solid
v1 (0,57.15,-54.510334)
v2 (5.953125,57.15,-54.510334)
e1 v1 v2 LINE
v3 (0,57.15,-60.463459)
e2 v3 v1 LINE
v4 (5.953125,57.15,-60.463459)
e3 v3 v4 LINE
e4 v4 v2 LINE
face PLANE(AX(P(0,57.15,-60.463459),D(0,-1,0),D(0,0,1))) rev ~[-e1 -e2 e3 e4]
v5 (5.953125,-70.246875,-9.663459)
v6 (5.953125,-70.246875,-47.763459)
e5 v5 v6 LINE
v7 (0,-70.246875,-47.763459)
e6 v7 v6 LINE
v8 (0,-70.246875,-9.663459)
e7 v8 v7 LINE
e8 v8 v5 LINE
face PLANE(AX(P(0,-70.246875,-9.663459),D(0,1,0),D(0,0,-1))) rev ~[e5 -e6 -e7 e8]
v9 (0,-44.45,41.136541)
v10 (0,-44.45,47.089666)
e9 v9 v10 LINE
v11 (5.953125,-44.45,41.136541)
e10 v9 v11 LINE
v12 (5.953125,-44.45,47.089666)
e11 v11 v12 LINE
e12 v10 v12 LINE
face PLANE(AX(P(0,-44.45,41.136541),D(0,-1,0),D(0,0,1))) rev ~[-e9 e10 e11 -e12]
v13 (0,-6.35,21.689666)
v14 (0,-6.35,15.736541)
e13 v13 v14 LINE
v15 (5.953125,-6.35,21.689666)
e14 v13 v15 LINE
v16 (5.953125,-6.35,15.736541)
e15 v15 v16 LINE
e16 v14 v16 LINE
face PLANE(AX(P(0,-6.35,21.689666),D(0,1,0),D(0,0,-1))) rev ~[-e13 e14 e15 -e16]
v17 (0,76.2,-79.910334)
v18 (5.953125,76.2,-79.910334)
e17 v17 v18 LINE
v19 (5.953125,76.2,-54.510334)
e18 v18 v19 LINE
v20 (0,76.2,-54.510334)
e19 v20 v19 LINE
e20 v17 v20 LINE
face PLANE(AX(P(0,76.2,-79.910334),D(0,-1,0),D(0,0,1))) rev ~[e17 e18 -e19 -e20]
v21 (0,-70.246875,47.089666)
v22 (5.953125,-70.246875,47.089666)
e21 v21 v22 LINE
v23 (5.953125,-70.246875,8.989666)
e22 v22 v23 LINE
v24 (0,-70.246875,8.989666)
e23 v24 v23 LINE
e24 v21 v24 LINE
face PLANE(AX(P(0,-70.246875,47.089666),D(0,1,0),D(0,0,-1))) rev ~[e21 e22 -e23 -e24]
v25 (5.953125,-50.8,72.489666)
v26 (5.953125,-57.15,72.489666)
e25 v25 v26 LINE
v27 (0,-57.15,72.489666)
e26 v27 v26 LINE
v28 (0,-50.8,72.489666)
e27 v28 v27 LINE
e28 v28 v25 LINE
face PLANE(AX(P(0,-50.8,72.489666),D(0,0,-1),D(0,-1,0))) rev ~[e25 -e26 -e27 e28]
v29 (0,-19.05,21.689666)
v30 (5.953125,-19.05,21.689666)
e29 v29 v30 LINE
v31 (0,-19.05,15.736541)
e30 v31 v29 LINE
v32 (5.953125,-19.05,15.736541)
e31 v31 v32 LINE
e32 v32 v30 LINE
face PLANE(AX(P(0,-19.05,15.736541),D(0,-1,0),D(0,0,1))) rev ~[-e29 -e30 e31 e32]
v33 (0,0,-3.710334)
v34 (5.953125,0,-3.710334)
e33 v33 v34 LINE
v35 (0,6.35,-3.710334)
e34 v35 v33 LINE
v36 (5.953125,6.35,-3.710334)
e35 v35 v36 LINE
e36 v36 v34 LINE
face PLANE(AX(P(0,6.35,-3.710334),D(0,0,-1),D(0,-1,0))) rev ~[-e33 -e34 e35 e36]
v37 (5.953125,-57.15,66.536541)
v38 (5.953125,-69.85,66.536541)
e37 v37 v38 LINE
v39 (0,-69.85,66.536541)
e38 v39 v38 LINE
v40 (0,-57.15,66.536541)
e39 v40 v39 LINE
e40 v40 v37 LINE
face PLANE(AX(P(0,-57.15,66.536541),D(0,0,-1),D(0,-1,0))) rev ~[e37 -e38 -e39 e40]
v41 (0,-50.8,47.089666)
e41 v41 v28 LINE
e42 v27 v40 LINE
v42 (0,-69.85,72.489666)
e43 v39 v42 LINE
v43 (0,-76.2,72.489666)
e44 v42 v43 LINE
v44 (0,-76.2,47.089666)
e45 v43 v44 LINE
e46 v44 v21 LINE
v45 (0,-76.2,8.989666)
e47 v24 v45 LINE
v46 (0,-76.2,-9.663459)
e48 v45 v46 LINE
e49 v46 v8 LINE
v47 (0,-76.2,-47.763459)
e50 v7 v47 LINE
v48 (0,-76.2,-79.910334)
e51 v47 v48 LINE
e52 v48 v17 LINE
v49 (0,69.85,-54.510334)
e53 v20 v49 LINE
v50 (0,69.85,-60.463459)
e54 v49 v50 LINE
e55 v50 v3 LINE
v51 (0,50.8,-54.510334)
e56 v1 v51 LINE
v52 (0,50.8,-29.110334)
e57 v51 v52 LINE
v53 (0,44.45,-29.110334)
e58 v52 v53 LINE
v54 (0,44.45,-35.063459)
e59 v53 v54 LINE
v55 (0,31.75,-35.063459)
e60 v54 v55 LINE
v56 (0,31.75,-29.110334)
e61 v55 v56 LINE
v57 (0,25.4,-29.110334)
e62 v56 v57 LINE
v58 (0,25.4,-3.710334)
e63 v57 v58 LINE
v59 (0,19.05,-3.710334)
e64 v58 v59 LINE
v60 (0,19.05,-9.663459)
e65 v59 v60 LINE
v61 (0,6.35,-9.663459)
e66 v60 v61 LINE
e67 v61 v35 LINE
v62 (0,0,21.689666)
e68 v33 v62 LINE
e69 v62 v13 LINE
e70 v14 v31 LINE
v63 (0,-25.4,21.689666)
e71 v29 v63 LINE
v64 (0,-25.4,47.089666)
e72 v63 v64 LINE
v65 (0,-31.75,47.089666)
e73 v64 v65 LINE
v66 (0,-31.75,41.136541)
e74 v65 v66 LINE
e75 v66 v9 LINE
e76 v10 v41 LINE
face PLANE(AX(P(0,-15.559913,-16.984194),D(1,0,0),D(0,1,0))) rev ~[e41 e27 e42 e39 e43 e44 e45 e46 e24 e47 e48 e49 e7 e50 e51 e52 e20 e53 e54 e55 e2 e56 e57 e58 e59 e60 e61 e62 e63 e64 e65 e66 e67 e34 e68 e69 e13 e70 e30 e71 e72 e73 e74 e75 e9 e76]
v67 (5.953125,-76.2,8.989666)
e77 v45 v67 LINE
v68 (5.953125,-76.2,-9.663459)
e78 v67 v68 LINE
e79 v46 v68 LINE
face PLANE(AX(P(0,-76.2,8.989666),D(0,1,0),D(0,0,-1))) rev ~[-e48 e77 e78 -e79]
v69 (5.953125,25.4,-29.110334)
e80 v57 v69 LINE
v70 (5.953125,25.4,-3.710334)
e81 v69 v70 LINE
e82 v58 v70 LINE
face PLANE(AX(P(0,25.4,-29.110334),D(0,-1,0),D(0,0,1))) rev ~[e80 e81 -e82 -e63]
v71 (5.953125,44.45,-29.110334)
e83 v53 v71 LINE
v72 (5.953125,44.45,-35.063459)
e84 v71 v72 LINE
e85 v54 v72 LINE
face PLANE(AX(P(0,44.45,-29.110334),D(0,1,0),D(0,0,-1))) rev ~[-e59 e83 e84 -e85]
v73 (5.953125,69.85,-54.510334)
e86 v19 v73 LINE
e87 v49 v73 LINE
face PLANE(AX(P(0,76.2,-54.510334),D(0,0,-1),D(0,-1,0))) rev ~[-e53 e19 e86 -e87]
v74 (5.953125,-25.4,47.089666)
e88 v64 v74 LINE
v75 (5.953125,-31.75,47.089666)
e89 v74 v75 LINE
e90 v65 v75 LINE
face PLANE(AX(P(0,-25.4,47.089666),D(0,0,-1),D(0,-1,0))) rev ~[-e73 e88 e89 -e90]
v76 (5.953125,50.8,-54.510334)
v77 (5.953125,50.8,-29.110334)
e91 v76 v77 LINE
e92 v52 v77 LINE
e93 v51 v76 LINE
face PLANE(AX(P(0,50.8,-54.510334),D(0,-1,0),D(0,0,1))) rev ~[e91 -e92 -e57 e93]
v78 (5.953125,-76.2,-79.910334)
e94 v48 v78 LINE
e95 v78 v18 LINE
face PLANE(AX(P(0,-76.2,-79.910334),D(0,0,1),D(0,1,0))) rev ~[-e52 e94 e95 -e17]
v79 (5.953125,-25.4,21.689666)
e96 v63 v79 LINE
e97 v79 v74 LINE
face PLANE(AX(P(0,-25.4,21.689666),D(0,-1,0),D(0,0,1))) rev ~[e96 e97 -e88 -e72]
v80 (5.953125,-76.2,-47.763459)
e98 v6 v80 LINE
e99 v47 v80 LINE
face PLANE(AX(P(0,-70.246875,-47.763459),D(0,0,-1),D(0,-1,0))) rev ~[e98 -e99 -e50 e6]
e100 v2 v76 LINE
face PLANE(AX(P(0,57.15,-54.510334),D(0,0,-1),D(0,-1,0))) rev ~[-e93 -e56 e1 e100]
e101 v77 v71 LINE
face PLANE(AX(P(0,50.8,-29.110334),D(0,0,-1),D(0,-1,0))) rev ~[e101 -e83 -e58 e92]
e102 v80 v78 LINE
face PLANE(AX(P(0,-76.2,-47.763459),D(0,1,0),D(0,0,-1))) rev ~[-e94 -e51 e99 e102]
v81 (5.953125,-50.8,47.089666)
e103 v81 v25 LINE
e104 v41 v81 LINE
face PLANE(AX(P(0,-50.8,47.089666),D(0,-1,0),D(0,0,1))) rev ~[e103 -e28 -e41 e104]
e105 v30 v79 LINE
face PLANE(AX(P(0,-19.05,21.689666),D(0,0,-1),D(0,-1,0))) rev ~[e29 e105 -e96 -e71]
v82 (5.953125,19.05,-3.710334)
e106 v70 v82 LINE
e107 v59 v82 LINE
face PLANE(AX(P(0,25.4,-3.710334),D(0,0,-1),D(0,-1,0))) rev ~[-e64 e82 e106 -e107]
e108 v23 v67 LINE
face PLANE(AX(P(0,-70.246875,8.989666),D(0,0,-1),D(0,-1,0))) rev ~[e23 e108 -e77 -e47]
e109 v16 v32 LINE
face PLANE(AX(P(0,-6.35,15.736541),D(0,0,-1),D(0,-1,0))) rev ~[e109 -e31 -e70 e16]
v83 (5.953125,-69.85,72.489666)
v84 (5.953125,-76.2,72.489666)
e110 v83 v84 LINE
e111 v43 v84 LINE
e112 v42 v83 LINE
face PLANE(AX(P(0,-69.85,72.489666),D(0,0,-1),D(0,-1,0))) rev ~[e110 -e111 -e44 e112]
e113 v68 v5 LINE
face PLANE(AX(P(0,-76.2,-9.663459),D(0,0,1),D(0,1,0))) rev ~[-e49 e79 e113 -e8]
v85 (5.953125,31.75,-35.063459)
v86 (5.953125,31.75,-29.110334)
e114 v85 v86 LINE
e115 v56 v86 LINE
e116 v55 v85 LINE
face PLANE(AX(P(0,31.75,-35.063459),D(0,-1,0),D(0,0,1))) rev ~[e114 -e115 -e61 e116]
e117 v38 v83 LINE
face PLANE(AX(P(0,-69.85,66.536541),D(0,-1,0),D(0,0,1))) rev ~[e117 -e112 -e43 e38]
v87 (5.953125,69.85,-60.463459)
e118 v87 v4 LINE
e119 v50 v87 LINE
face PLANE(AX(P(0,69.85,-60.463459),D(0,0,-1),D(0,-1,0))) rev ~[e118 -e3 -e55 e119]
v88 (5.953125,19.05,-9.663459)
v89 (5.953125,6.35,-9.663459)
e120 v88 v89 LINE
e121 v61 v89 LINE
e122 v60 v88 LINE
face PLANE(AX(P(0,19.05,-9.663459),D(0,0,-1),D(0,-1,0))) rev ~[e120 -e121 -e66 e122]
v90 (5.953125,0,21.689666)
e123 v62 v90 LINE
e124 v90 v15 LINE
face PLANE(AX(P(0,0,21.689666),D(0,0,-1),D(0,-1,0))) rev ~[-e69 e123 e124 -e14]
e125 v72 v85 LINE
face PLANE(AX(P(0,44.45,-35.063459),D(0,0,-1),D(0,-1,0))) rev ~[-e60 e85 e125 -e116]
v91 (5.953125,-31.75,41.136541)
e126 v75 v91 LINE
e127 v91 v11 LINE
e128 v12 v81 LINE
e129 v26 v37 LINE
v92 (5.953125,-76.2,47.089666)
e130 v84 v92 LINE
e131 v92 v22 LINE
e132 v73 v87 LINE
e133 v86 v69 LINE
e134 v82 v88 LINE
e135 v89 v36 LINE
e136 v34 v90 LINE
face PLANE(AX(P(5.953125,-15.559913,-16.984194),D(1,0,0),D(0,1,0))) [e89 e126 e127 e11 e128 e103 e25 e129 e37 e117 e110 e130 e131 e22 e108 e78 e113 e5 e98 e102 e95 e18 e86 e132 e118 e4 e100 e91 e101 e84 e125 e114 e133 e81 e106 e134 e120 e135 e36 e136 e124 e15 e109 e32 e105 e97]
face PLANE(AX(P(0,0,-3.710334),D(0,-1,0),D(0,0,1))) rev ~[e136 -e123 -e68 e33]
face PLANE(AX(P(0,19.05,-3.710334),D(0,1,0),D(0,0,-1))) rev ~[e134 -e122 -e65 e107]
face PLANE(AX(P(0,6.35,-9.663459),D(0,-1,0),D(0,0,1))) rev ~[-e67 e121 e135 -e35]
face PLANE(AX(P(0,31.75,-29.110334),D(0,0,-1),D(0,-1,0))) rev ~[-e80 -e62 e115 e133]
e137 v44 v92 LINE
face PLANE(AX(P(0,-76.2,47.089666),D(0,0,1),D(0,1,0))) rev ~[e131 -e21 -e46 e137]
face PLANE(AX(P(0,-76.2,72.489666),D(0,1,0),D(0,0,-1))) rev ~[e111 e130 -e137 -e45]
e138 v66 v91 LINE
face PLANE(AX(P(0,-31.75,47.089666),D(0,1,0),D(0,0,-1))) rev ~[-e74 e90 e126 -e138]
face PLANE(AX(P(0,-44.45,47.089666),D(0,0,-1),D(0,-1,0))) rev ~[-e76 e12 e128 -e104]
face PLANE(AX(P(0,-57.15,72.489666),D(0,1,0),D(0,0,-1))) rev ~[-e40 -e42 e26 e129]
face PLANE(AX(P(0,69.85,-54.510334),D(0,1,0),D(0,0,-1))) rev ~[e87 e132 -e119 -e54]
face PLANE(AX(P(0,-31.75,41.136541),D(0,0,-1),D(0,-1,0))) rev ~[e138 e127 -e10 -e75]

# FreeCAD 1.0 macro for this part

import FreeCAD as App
import Part
import Sketcher
from FreeCAD import Vector
Q = App.Units.Quantity

doc = App.newDocument("Part")
body = doc.addObject("PartDesign::Body", "Body")

# Sketch on YZ plane
sketch1 = doc.addObject("Sketcher::SketchObject", "Sketch")
body.addObject(sketch1)
sketch1.AttachmentSupport = (doc.YZ_Plane, [""])
sketch1.MapMode = "FlatFace"
sketch1.addGeometry([
    Part.LineSegment(Vector(-69.85, 72.489666, 0), Vector(-76.2, 72.489666, 0)),  # 0
    Part.LineSegment(Vector(-76.2, 72.489666, 0), Vector(-76.2, 47.089666, 0)),  # 1
    Part.LineSegment(Vector(-76.2, 47.089666, 0), Vector(-70.246875, 47.089666, 0)),  # 2
    Part.LineSegment(Vector(-70.246875, 47.089666, 0), Vector(-70.246875, 8.989666, 0)),  # 3
    Part.LineSegment(Vector(-70.246875, 8.989666, 0), Vector(-76.2, 8.989666, 0)),  # 4
    Part.LineSegment(Vector(-76.2, 8.989666, 0), Vector(-76.2, -9.663459, 0)),  # 5
    Part.LineSegment(Vector(-76.2, -9.663459, 0), Vector(-70.246875, -9.663459, 0)),  # 6
    Part.LineSegment(Vector(-70.246875, -9.663459, 0), Vector(-70.246875, -47.763459, 0)),  # 7
    Part.LineSegment(Vector(-70.246875, -47.763459, 0), Vector(-76.2, -47.763459, 0)),  # 8
    Part.LineSegment(Vector(-76.2, -47.763459, 0), Vector(-76.2, -79.910334, 0)),  # 9
    Part.LineSegment(Vector(-76.2, -79.910334, 0), Vector(76.2, -79.910334, 0)),  # 10
    Part.LineSegment(Vector(76.2, -79.910334, 0), Vector(76.2, -54.510334, 0)),  # 11
    Part.LineSegment(Vector(76.2, -54.510334, 0), Vector(69.85, -54.510334, 0)),  # 12
    Part.LineSegment(Vector(69.85, -54.510334, 0), Vector(69.85, -60.463459, 0)),  # 13
    Part.LineSegment(Vector(69.85, -60.463459, 0), Vector(57.15, -60.463459, 0)),  # 14
    Part.LineSegment(Vector(57.15, -60.463459, 0), Vector(57.15, -54.510334, 0)),  # 15
    Part.LineSegment(Vector(57.15, -54.510334, 0), Vector(50.8, -54.510334, 0)),  # 16
    Part.LineSegment(Vector(50.8, -54.510334, 0), Vector(50.8, -29.110334, 0)),  # 17
    Part.LineSegment(Vector(50.8, -29.110334, 0), Vector(44.45, -29.110334, 0)),  # 18
    Part.LineSegment(Vector(44.45, -29.110334, 0), Vector(44.45, -35.063459, 0)),  # 19
    Part.LineSegment(Vector(44.45, -35.063459, 0), Vector(31.75, -35.063459, 0)),  # 20
    Part.LineSegment(Vector(31.75, -35.063459, 0), Vector(31.75, -29.110334, 0)),  # 21
    Part.LineSegment(Vector(31.75, -29.110334, 0), Vector(25.4, -29.110334, 0)),  # 22
    Part.LineSegment(Vector(25.4, -29.110334, 0), Vector(25.4, -3.710334, 0)),  # 23
    Part.LineSegment(Vector(25.4, -3.710334, 0), Vector(19.05, -3.710334, 0)),  # 24
    Part.LineSegment(Vector(19.05, -3.710334, 0), Vector(19.05, -9.663459, 0)),  # 25
    Part.LineSegment(Vector(19.05, -9.663459, 0), Vector(6.35, -9.663459, 0)),  # 26
    Part.LineSegment(Vector(6.35, -9.663459, 0), Vector(6.35, -3.710334, 0)),  # 27
    Part.LineSegment(Vector(6.35, -3.710334, 0), Vector(0, -3.710334, 0)),  # 28
    Part.LineSegment(Vector(0, -3.710334, 0), Vector(0, 21.689666, 0)),  # 29
    Part.LineSegment(Vector(0, 21.689666, 0), Vector(-6.35, 21.689666, 0)),  # 30
    Part.LineSegment(Vector(-6.35, 21.689666, 0), Vector(-6.35, 15.736541, 0)),  # 31
    Part.LineSegment(Vector(-6.35, 15.736541, 0), Vector(-19.05, 15.736541, 0)),  # 32
    Part.LineSegment(Vector(-19.05, 15.736541, 0), Vector(-19.05, 21.689666, 0)),  # 33
    Part.LineSegment(Vector(-19.05, 21.689666, 0), Vector(-25.4, 21.689666, 0)),  # 34
    Part.LineSegment(Vector(-25.4, 21.689666, 0), Vector(-25.4, 47.089666, 0)),  # 35
    Part.LineSegment(Vector(-25.4, 47.089666, 0), Vector(-31.75, 47.089666, 0)),  # 36
    Part.LineSegment(Vector(-31.75, 47.089666, 0), Vector(-31.75, 41.136541, 0)),  # 37
    Part.LineSegment(Vector(-31.75, 41.136541, 0), Vector(-44.45, 41.136541, 0)),  # 38
    Part.LineSegment(Vector(-44.45, 41.136541, 0), Vector(-44.45, 47.089666, 0)),  # 39
    Part.LineSegment(Vector(-44.45, 47.089666, 0), Vector(-50.8, 47.089666, 0)),  # 40
    Part.LineSegment(Vector(-50.8, 47.089666, 0), Vector(-50.8, 72.489666, 0)),  # 41
    Part.LineSegment(Vector(-50.8, 72.489666, 0), Vector(-57.15, 72.489666, 0)),  # 42
    Part.LineSegment(Vector(-57.15, 72.489666, 0), Vector(-57.15, 66.536541, 0)),  # 43
    Part.LineSegment(Vector(-57.15, 66.536541, 0), Vector(-69.85, 66.536541, 0)),  # 44
    Part.LineSegment(Vector(-69.85, 66.536541, 0), Vector(-69.85, 72.489666, 0)),  # 45
], False)
sketch1.addConstraint([
    Sketcher.Constraint("Coincident", 0, 2, 1, 1),
    Sketcher.Constraint("Coincident", 1, 2, 2, 1),
    Sketcher.Constraint("Coincident", 2, 2, 3, 1),
    Sketcher.Constraint("Coincident", 3, 2, 4, 1),
    Sketcher.Constraint("Coincident", 4, 2, 5, 1),
    Sketcher.Constraint("Coincident", 5, 2, 6, 1),
    Sketcher.Constraint("Coincident", 6, 2, 7, 1),
    Sketcher.Constraint("Coincident", 7, 2, 8, 1),
    Sketcher.Constraint("Coincident", 8, 2, 9, 1),
    Sketcher.Constraint("Coincident", 9, 2, 10, 1),
    Sketcher.Constraint("Coincident", 10, 2, 11, 1),
    Sketcher.Constraint("Coincident", 11, 2, 12, 1),
    Sketcher.Constraint("Coincident", 12, 2, 13, 1),
    Sketcher.Constraint("Coincident", 13, 2, 14, 1),
    Sketcher.Constraint("Coincident", 14, 2, 15, 1),
    Sketcher.Constraint("Coincident", 15, 2, 16, 1),
    Sketcher.Constraint("Coincident", 16, 2, 17, 1),
    Sketcher.Constraint("Coincident", 17, 2, 18, 1),
    Sketcher.Constraint("Coincident", 18, 2, 19, 1),
    Sketcher.Constraint("Coincident", 19, 2, 20, 1),
    Sketcher.Constraint("Coincident", 20, 2, 21, 1),
    Sketcher.Constraint("Coincident", 21, 2, 22, 1),
    Sketcher.Constraint("Coincident", 22, 2, 23, 1),
    Sketcher.Constraint("Coincident", 23, 2, 24, 1),
    Sketcher.Constraint("Coincident", 24, 2, 25, 1),
    Sketcher.Constraint("Coincident", 25, 2, 26, 1),
    Sketcher.Constraint("Coincident", 26, 2, 27, 1),
    Sketcher.Constraint("Coincident", 27, 2, 28, 1),
    Sketcher.Constraint("Coincident", 28, 2, 29, 1),
    Sketcher.Constraint("Coincident", 29, 2, 30, 1),
    Sketcher.Constraint("Coincident", 30, 2, 31, 1),
    Sketcher.Constraint("Coincident", 31, 2, 32, 1),
    Sketcher.Constraint("Coincident", 32, 2, 33, 1),
    Sketcher.Constraint("Coincident", 33, 2, 34, 1),
    Sketcher.Constraint("Coincident", 34, 2, 35, 1),
    Sketcher.Constraint("Coincident", 35, 2, 36, 1),
    Sketcher.Constraint("Coincident", 36, 2, 37, 1),
    Sketcher.Constraint("Coincident", 37, 2, 38, 1),
    Sketcher.Constraint("Coincident", 38, 2, 39, 1),
    Sketcher.Constraint("Coincident", 39, 2, 40, 1),
    Sketcher.Constraint("Coincident", 40, 2, 41, 1),
    Sketcher.Constraint("Coincident", 41, 2, 42, 1),
    Sketcher.Constraint("Coincident", 42, 2, 43, 1),
    Sketcher.Constraint("Coincident", 43, 2, 44, 1),
    Sketcher.Constraint("Coincident", 44, 2, 45, 1),
    Sketcher.Constraint("Coincident", 45, 2, 0, 1),
    Sketcher.Constraint("Horizontal", 0),
    Sketcher.Constraint("Vertical", 1),
    Sketcher.Constraint("Horizontal", 2),
    Sketcher.Constraint("Vertical", 3),
    Sketcher.Constraint("Horizontal", 4),
    Sketcher.Constraint("Vertical", 5),
    Sketcher.Constraint("Horizontal", 6),
    Sketcher.Constraint("Vertical", 7),
    Sketcher.Constraint("Horizontal", 8),
    Sketcher.Constraint("Vertical", 9),
    Sketcher.Constraint("Horizontal", 10),
    Sketcher.Constraint("Vertical", 11),
    Sketcher.Constraint("Horizontal", 12),
    Sketcher.Constraint("Vertical", 13),
    Sketcher.Constraint("Horizontal", 14),
    Sketcher.Constraint("Vertical", 15),
    Sketcher.Constraint("Horizontal", 16),
    Sketcher.Constraint("Vertical", 17),
    Sketcher.Constraint("Horizontal", 18),
    Sketcher.Constraint("Vertical", 19),
    Sketcher.Constraint("Horizontal", 20),
    Sketcher.Constraint("Vertical", 21),
    Sketcher.Constraint("Horizontal", 22),
    Sketcher.Constraint("Vertical", 23),
    Sketcher.Constraint("Horizontal", 24),
    Sketcher.Constraint("Vertical", 25),
    Sketcher.Constraint("Horizontal", 26),
    Sketcher.Constraint("Vertical", 27),
    Sketcher.Constraint("Horizontal", 28),
    Sketcher.Constraint("Vertical", 29),
    Sketcher.Constraint("Horizontal", 30),
    Sketcher.Constraint("Vertical", 31),
    Sketcher.Constraint("Horizontal", 32),
    Sketcher.Constraint("Vertical", 33),
    Sketcher.Constraint("Horizontal", 34),
    Sketcher.Constraint("Vertical", 35),
    Sketcher.Constraint("Horizontal", 36),
    Sketcher.Constraint("Vertical", 37),
    Sketcher.Constraint("Horizontal", 38),
    Sketcher.Constraint("Vertical", 39),
    Sketcher.Constraint("Horizontal", 40),
    Sketcher.Constraint("Vertical", 41),
    Sketcher.Constraint("Horizontal", 42),
    Sketcher.Constraint("Vertical", 43),
    Sketcher.Constraint("Horizontal", 44),
    Sketcher.Constraint("Vertical", 45),
    Sketcher.Constraint("PointOnObject", 28, 2, -2),
    Sketcher.Constraint("Horizontal", 12, 2, 15, 2),
    Sketcher.Constraint("Horizontal", 18, 2, 21, 2),
    Sketcher.Constraint("Horizontal", 6, 2, 25, 2),
    Sketcher.Constraint("Horizontal", 24, 2, 27, 2),
    Sketcher.Constraint("Horizontal", 30, 2, 33, 2),
    Sketcher.Constraint("Horizontal", 2, 2, 35, 2),
    Sketcher.Constraint("Horizontal", 36, 2, 39, 2),
    Sketcher.Constraint("Horizontal", 0, 2, 41, 2),
    Sketcher.Constraint("Vertical", 1, 2, 4, 2),
    Sketcher.Constraint("Vertical", 3, 2, 6, 2),
    Sketcher.Constraint("Vertical", 5, 2, 8, 2),
    Sketcher.Constraint("Equal", 0, 12),
    Sketcher.Constraint("Equal", 12, 16),
    Sketcher.Constraint("Equal", 16, 18),
    Sketcher.Constraint("Equal", 14, 20),
    Sketcher.Constraint("Equal", 18, 22),
    Sketcher.Constraint("Equal", 22, 24),
    Sketcher.Constraint("Equal", 20, 26),
    Sketcher.Constraint("Equal", 24, 28),
    Sketcher.Constraint("Equal", 28, 30),
    Sketcher.Constraint("Equal", 26, 32),
    Sketcher.Constraint("Equal", 30, 34),
    Sketcher.Constraint("Equal", 34, 36),
    Sketcher.Constraint("Equal", 32, 38),
    Sketcher.Constraint("Equal", 36, 40),
    Sketcher.Constraint("Equal", 40, 42),
    Sketcher.Constraint("Equal", 38, 44),
    Sketcher.Constraint("Equal", 3, 7),
    Sketcher.Constraint("Equal", 1, 11),
    Sketcher.Constraint("Equal", 8, 13),
    Sketcher.Constraint("Equal", 11, 17),
    Sketcher.Constraint("Equal", 15, 19),
    Sketcher.Constraint("Equal", 17, 23),
    Sketcher.Constraint("Equal", 21, 25),
    Sketcher.Constraint("Equal", 23, 29),
    Sketcher.Constraint("Equal", 27, 31),
    Sketcher.Constraint("Equal", 29, 35),
    Sketcher.Constraint("Equal", 33, 37),
    Sketcher.Constraint("Equal", 39, 43),
    Sketcher.Constraint("DistanceX", 10, 1, 10, 2, Q("6 in")),
    Sketcher.Constraint("DistanceY", 1, 2, 1, 1, Q("1 in")),
    Sketcher.Constraint("DistanceX", 14, 2, 14, 1, Q("0.5 in")),
    Sketcher.Constraint("DistanceY", 3, 2, 3, 1, Q("1.5 in")),
    Sketcher.Constraint("DistanceX", 2, 1, 2, 2, Q("0.234375 in")),
    Sketcher.Constraint("DistanceY", 5, 2, -1, 1, 9.663459),
])
pad1 = doc.addObject("PartDesign::Pad", "Pad")
body.addObject(pad1)
pad1.Profile = sketch1
pad1.Length = Q("0.234375 in")

doc.recompute()
